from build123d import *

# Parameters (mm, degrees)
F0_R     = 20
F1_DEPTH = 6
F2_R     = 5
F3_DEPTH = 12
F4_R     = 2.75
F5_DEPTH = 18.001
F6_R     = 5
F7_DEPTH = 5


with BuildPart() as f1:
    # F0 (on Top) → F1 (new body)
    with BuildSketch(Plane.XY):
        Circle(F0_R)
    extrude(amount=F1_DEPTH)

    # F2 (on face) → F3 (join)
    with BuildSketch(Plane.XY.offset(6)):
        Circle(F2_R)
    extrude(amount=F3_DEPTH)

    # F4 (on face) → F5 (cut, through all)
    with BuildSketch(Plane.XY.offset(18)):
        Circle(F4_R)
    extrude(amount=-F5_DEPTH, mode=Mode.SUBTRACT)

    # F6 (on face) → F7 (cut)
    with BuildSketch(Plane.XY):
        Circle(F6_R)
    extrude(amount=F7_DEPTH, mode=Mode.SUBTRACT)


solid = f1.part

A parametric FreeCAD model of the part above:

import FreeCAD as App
import Part
import Sketcher
from FreeCAD import Vector
Q = App.Units.Quantity

doc = App.newDocument("Part")
params = doc.addObject("Spreadsheet::Sheet", "Params")
for row, (alias, value) in enumerate([
    ("sketch1_diameter", "40 mm"),
    ("pad1_length", "6 mm"),
    ("sketch2_diameter", "10 mm"),
    ("pad2_length", "12 mm"),
    ("sketch3_diameter", "5.5 mm"),
    ("sketch4_diameter", "10 mm"),
    ("pocket2_length", "5 mm"),
], start=1):
    params.set(f"A{row}", alias)
    params.set(f"B{row}", "=" + value)
    params.setAlias(f"B{row}", alias)

body = doc.addObject("PartDesign::Body", "Body")

# Sketch on XY plane
sketch1 = body.newObject("Sketcher::SketchObject", "Sketch")
sketch1.AttachmentSupport = (doc.getObject("XY_Plane"), [""])
sketch1.MapMode = "FlatFace"
sketch1.addGeometry(Part.Circle(Vector(0, 0, 0), Vector(0, 0, 1), 20), False)
sketch1.addConstraint([
    Sketcher.Constraint("Coincident", 0, 3, -1, 1),
    Sketcher.Constraint("Diameter", 0, Q("40 mm")),
])
sketch1.setExpression("Constraints[1]", "Params.sketch1_diameter")
pad1 = body.newObject("PartDesign::Pad", "Pad")
pad1.Profile = sketch1
pad1.setExpression("Length", "Params.pad1_length")

# Sketch on XY plane
sketch2 = body.newObject("Sketcher::SketchObject", "Sketch001")
sketch2.AttachmentSupport = (doc.getObject("XY_Plane"), [""])
sketch2.MapMode = "FlatFace"
sketch2.AttachmentOffset = App.Placement(Vector(0, 0, 6), App.Rotation())
sketch2.addGeometry(Part.Circle(Vector(0, 0, 0), Vector(0, 0, 1), 5), False)
sketch2.addConstraint([
    Sketcher.Constraint("Coincident", 0, 3, -1, 1),
    Sketcher.Constraint("Diameter", 0, Q("10 mm")),
])
sketch2.setExpression("Constraints[1]", "Params.sketch2_diameter")
pad2 = body.newObject("PartDesign::Pad", "Pad001")
pad2.Profile = sketch2
pad2.setExpression("Length", "Params.pad2_length")

# Sketch on XY plane
sketch3 = body.newObject("Sketcher::SketchObject", "Sketch002")
sketch3.AttachmentSupport = (doc.getObject("XY_Plane"), [""])
sketch3.MapMode = "FlatFace"
sketch3.AttachmentOffset = App.Placement(Vector(0, 0, 18), App.Rotation())
sketch3.addGeometry(Part.Circle(Vector(0, 0, 0), Vector(0, 0, 1), 2.8), False)
sketch3.addConstraint([
    Sketcher.Constraint("Coincident", 0, 3, -1, 1),
    Sketcher.Constraint("Diameter", 0, Q("5.5 mm")),
])
sketch3.setExpression("Constraints[1]", "Params.sketch3_diameter")
pocket1 = body.newObject("PartDesign::Pocket", "Pocket")
pocket1.Profile = sketch3
pocket1.Type = "ThroughAll"

# Sketch on XY plane
sketch4 = body.newObject("Sketcher::SketchObject", "Sketch003")
sketch4.AttachmentSupport = (doc.getObject("XY_Plane"), [""])
sketch4.MapMode = "FlatFace"
sketch4.addGeometry(Part.Circle(Vector(0, 0, 0), Vector(0, 0, 1), 5), False)
sketch4.addConstraint([
    Sketcher.Constraint("Coincident", 0, 3, -1, 1),
    Sketcher.Constraint("Diameter", 0, Q("10 mm")),
])
sketch4.setExpression("Constraints[1]", "Params.sketch4_diameter")
pocket2 = body.newObject("PartDesign::Pocket", "Pocket001")
pocket2.Profile = sketch4
pocket2.setExpression("Length", "Params.pocket2_length")
pocket2.Reversed = True

doc.recompute()
